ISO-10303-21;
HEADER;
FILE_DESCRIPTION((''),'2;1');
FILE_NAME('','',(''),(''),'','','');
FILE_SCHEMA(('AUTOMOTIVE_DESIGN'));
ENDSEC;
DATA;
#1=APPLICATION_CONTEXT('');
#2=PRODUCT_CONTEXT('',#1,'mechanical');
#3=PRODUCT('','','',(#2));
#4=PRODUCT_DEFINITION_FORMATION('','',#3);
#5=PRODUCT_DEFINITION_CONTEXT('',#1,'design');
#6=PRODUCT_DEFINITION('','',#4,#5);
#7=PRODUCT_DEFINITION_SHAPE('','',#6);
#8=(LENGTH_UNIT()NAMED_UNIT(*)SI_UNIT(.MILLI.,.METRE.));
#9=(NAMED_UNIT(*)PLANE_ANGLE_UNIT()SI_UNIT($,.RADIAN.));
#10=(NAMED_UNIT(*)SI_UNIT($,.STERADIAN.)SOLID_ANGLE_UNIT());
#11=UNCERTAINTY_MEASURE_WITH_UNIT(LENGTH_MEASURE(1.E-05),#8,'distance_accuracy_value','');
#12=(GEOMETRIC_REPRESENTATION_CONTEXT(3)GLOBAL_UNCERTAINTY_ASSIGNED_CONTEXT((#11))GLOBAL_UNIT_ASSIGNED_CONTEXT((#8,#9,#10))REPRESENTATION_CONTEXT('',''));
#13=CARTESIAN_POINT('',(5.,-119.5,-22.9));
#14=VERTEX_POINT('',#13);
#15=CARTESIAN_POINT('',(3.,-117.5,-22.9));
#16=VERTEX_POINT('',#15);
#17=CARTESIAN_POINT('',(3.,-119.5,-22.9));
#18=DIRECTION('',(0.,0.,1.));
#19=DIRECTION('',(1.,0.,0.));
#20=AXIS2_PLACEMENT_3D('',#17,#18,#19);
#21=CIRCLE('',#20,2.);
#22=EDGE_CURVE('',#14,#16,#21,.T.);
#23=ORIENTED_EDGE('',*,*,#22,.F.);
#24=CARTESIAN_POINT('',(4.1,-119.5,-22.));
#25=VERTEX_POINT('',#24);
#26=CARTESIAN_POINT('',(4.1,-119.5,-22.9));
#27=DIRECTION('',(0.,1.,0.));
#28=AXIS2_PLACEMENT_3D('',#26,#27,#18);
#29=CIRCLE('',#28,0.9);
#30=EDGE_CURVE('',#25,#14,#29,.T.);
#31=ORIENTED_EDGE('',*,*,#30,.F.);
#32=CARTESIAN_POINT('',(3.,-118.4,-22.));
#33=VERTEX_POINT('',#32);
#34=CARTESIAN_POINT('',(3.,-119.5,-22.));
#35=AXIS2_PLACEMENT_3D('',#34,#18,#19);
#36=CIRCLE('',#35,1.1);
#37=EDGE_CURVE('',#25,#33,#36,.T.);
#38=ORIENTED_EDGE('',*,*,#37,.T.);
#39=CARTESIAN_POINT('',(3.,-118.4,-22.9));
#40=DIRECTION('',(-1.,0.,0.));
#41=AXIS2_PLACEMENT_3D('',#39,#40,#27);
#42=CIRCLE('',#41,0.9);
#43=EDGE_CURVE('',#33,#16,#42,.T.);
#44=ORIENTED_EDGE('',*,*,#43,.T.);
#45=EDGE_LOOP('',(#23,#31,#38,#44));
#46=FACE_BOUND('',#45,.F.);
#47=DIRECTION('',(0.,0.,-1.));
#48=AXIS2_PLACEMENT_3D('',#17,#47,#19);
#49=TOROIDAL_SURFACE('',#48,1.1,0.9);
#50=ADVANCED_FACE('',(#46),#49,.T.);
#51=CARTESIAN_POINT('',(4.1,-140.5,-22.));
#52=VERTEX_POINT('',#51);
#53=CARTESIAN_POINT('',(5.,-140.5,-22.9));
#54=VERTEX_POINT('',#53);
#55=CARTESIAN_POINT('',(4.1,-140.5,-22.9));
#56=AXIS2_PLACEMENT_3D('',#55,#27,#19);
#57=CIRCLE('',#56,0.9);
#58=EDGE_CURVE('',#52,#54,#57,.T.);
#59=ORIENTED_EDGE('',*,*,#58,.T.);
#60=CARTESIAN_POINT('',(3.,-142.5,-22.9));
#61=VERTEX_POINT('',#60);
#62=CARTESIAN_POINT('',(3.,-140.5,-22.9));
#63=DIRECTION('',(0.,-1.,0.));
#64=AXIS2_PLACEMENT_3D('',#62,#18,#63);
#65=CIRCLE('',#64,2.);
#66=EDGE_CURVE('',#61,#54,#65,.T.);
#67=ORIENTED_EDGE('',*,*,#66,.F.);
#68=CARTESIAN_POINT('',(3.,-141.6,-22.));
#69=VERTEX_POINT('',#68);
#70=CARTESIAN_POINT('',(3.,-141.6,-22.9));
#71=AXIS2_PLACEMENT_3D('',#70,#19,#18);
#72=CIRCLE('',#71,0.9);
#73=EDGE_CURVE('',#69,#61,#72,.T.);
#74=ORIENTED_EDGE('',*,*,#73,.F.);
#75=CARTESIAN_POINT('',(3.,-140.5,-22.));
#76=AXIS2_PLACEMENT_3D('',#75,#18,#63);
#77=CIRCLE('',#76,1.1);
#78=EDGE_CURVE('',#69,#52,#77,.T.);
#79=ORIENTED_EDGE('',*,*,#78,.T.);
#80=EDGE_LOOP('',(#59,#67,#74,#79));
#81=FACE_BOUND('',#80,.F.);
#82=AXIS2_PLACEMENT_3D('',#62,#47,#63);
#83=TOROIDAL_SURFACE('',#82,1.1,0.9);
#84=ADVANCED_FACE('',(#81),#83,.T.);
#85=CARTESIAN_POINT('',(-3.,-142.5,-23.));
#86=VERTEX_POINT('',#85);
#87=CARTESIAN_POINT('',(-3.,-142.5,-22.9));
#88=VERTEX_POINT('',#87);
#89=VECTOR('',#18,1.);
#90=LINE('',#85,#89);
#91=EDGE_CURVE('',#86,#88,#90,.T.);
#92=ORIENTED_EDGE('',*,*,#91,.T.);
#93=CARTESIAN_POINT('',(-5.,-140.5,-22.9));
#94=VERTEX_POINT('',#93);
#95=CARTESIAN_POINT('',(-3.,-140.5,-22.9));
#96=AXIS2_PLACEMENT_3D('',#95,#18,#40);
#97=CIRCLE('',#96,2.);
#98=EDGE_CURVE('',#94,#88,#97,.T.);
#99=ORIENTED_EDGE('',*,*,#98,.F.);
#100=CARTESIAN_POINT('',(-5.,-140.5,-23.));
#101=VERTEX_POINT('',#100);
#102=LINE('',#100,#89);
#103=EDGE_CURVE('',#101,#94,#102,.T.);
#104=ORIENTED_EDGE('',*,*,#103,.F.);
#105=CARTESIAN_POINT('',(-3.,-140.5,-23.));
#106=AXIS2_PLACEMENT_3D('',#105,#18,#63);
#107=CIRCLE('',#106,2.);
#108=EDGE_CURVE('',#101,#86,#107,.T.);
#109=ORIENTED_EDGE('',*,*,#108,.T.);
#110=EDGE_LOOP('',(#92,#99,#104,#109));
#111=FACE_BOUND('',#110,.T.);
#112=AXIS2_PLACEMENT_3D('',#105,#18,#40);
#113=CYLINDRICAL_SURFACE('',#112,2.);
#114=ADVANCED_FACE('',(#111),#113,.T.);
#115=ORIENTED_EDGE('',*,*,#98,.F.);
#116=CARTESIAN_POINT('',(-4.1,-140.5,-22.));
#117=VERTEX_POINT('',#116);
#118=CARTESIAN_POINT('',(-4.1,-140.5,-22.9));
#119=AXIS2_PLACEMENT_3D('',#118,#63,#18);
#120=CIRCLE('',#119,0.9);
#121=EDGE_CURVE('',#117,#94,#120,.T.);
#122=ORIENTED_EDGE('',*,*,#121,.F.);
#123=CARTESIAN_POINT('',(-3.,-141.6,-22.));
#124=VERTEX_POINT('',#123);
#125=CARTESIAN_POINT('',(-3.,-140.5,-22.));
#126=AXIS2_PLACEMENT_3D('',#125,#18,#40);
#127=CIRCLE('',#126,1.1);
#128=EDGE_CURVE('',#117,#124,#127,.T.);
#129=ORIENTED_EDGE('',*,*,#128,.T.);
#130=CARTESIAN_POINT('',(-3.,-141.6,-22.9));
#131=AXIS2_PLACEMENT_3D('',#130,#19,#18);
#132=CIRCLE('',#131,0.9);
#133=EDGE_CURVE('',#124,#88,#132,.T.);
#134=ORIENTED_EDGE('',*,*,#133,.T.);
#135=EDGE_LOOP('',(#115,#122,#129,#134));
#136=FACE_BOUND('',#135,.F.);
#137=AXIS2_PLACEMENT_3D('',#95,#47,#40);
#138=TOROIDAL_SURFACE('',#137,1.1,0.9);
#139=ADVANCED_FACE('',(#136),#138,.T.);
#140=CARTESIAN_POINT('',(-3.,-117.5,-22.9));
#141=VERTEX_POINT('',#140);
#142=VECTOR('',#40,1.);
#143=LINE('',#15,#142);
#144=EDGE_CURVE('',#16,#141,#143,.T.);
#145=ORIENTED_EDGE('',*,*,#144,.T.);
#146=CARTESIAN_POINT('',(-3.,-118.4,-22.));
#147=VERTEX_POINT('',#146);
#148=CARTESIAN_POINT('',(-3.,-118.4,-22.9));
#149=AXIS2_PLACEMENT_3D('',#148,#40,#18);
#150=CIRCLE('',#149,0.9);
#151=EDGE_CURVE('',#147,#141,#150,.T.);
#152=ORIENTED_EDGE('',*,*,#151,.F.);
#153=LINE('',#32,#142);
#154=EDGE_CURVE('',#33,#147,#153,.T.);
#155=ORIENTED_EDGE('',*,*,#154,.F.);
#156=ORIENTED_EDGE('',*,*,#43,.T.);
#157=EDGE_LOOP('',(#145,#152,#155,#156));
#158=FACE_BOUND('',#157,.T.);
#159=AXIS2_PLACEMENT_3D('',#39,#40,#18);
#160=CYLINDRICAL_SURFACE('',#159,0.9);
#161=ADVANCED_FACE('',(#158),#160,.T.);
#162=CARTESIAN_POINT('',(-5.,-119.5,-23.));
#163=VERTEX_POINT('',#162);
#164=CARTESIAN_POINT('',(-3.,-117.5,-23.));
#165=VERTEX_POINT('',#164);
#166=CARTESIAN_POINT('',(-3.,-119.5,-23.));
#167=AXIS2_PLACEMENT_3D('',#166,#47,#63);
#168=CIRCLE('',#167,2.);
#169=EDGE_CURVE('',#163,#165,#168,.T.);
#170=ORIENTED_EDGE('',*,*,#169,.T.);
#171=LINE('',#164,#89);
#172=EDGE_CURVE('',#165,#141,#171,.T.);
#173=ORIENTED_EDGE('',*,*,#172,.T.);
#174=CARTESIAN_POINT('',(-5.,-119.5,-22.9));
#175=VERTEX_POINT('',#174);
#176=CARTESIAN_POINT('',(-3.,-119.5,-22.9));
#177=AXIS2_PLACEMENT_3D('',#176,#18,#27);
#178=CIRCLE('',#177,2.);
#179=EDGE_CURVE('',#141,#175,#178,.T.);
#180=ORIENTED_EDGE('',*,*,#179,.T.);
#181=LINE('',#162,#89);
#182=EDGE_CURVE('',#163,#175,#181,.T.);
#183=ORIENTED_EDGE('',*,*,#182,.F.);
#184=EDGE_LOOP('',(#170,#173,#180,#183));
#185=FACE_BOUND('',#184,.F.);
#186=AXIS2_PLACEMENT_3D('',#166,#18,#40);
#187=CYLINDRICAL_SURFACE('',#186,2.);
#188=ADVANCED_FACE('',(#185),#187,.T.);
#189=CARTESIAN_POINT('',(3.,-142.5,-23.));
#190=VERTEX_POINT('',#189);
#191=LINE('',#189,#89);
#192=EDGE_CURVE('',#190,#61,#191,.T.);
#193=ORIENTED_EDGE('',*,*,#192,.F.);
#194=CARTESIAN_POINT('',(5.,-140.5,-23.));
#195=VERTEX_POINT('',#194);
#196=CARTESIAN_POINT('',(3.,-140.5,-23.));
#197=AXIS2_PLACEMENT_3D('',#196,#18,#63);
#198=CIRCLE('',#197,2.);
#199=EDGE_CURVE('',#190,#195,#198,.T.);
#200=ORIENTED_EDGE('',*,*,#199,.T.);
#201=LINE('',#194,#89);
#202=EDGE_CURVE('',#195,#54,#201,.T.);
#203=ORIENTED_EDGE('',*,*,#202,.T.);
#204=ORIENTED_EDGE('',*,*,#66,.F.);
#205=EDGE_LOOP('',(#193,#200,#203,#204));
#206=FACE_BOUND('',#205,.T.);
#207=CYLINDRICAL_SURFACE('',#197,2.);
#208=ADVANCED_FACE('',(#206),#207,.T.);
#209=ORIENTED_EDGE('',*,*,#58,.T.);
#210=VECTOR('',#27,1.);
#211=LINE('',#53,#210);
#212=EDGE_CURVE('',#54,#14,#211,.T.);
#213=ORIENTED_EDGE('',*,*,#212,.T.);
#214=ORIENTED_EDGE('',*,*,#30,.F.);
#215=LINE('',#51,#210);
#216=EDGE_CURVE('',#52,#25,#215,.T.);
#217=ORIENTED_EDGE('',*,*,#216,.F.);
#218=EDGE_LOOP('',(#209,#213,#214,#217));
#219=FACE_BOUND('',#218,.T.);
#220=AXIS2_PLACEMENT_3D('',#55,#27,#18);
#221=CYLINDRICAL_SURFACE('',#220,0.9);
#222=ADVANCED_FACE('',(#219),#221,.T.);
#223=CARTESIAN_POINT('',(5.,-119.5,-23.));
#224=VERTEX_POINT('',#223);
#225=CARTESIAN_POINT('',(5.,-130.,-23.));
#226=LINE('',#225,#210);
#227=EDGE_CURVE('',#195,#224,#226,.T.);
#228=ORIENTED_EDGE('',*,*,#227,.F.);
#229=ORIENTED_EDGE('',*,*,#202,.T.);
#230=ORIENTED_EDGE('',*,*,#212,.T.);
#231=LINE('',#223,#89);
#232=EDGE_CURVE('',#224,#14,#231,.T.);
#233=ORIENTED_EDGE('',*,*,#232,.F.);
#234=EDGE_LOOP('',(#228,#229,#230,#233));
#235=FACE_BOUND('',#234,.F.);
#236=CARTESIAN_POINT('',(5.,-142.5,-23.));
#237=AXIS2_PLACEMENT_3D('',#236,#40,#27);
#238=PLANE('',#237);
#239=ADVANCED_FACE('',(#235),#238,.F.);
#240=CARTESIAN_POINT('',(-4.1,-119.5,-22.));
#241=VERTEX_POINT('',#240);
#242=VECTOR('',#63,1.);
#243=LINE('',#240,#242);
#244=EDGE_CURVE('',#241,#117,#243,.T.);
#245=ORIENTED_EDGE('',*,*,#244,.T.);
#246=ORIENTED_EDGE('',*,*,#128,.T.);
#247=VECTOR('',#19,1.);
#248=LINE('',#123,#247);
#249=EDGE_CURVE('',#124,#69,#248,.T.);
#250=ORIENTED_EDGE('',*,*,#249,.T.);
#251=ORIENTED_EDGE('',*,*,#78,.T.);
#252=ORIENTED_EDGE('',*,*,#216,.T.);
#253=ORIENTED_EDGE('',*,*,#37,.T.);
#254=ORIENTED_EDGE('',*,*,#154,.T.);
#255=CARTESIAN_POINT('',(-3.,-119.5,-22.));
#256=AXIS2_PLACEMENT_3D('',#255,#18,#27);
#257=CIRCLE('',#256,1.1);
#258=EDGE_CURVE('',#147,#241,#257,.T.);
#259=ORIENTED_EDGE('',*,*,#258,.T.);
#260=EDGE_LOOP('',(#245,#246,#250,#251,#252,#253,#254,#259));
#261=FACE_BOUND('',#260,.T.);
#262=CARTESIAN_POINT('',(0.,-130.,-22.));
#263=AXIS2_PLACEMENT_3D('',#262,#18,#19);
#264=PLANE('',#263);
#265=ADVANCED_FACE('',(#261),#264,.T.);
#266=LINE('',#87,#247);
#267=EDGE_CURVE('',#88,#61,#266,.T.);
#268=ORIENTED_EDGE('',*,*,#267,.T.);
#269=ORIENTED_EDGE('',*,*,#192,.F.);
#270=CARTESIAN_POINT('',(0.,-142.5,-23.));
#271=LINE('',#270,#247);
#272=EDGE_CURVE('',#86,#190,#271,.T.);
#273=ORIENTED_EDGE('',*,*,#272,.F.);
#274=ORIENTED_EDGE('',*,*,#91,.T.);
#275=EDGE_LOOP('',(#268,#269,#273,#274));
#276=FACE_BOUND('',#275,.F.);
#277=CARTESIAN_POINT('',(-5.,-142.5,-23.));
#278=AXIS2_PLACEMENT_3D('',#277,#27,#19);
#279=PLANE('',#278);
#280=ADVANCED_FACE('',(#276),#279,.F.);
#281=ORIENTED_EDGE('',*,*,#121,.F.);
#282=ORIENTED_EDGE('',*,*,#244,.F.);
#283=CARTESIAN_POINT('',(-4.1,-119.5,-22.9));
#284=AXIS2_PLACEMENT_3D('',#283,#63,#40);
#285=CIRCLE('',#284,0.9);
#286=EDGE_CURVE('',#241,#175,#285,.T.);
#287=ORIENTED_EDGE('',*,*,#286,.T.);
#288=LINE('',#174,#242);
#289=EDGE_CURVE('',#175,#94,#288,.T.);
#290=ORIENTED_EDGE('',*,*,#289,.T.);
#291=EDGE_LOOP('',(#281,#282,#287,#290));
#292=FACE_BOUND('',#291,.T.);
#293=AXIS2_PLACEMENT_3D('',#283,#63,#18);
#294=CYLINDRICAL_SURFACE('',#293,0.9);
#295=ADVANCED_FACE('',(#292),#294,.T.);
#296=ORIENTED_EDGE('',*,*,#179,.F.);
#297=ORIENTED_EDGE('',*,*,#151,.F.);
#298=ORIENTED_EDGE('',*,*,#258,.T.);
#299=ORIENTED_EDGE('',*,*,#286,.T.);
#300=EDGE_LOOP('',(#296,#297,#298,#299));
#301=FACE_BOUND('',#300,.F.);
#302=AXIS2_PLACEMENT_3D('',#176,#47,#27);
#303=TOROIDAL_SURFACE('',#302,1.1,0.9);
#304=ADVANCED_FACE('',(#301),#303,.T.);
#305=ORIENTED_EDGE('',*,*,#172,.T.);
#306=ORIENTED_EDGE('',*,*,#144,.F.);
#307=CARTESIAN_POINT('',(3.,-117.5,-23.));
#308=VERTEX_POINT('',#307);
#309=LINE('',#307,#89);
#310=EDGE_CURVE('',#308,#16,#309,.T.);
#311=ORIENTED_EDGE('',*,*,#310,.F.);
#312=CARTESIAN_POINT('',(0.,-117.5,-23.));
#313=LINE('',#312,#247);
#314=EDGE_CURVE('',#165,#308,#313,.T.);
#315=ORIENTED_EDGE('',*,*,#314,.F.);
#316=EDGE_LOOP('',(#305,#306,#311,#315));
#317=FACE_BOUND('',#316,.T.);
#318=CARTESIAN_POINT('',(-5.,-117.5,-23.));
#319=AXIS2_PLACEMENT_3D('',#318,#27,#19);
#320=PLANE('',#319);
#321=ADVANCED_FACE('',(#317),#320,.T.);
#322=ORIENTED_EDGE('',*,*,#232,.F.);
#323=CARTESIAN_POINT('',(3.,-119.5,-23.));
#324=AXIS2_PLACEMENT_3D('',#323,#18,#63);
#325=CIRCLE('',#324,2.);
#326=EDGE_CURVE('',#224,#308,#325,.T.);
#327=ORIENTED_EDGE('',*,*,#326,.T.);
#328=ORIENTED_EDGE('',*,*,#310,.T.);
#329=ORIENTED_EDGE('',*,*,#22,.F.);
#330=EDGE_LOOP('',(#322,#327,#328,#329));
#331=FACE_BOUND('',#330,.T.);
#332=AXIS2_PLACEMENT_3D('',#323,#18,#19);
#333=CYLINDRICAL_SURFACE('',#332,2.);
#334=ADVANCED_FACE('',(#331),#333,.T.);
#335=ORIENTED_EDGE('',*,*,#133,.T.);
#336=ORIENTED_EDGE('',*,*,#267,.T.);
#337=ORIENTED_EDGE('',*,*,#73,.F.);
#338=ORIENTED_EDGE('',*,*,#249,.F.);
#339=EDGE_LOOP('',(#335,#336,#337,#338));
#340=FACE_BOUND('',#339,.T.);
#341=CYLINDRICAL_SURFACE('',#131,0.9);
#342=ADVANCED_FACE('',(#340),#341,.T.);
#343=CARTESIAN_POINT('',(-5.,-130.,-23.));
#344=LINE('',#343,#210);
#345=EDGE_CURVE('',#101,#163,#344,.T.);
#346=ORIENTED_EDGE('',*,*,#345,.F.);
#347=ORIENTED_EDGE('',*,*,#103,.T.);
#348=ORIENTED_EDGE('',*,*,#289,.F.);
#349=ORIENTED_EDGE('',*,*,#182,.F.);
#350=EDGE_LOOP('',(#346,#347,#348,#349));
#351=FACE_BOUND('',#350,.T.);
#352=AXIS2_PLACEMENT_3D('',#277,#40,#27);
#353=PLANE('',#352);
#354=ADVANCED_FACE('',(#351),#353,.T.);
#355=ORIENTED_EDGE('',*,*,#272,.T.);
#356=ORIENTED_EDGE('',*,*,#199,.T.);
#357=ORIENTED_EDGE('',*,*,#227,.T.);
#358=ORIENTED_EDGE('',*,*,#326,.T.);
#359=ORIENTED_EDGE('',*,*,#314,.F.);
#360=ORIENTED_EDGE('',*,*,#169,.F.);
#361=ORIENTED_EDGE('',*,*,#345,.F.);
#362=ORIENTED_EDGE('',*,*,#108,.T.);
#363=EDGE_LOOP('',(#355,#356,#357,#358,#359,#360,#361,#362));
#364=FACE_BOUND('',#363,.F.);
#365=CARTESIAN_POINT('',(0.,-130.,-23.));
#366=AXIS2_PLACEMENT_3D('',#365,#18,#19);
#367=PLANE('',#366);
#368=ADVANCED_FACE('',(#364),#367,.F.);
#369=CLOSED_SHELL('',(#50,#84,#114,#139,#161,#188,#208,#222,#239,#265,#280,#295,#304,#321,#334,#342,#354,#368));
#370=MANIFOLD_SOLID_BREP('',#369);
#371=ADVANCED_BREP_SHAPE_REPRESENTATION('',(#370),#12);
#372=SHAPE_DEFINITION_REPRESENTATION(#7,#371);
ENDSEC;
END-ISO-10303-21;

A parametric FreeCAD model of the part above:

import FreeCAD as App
import Part
import Sketcher


def edges_at(feature, points):
    """Names of the edges that pass closest to the given points."""
    edges = feature.Shape.Edges
    near = lambda p: min(range(len(edges)), key=lambda i: edges[i].distToShape(Part.Vertex(*p))[0])
    return sorted({f"Edge{near(p) + 1}" for p in points})

doc = App.newDocument("Part")
body = doc.addObject("PartDesign::Body", "Body")

# Sketch on XY plane
sketch1 = body.newObject("Sketcher::SketchObject", "Sketch")
sketch1.AttachmentSupport = (doc.getObject("XY_Plane"), [""])
sketch1.MapMode = "FlatFace"
sketch1.addGeometry(Part.LineSegment(App.Vector(-5, 12, 0), App.Vector(-5, -12, 0)), False)
sketch1.addGeometry(Part.LineSegment(App.Vector(-5, -12, 0), App.Vector(5, -12, 0)), False)
sketch1.addGeometry(Part.LineSegment(App.Vector(5, -12, 0), App.Vector(5, 12, 0)), False)
sketch1.addGeometry(Part.LineSegment(App.Vector(5, 12, 0), App.Vector(-5, 12, 0)), False)
sketch1.addConstraint(Sketcher.Constraint("Coincident", 0, 2, 1, 1))
sketch1.addConstraint(Sketcher.Constraint("Coincident", 1, 2, 2, 1))
sketch1.addConstraint(Sketcher.Constraint("Coincident", 2, 2, 3, 1))
sketch1.addConstraint(Sketcher.Constraint("Coincident", 3, 2, 0, 1))
sketch1.addConstraint(Sketcher.Constraint("Vertical", 0))
sketch1.addConstraint(Sketcher.Constraint("Horizontal", 1))
sketch1.addConstraint(Sketcher.Constraint("Vertical", 2))
sketch1.addConstraint(Sketcher.Constraint("Horizontal", 3))
sketch1.addConstraint(Sketcher.Constraint("Symmetric", 0, 2, 2, 2, -1, 1))
sketch1.addConstraint(Sketcher.Constraint("DistanceX", 1, 1, 1, 2, 10.0))
sketch1.addConstraint(Sketcher.Constraint("DistanceY", 0, 2, 0, 1, 25.0))
pad1 = body.newObject("PartDesign::Pad", "Pad")
pad1.Profile = sketch1
pad1.Length = 1
doc.recompute()

fillet = body.newObject("PartDesign::Fillet", "Fillet")
fillet.Base = (pad1, edges_at(pad1, [
    (-5, -12.5, 0.5),
    (-5, 12.5, 0.5),
    (5, -12.5, 0.5),
    (5, 12.5, 0.5),
]))
fillet.Radius = 2
doc.recompute()

fillet2 = body.newObject("PartDesign::Fillet", "Fillet001")
fillet2.Base = (fillet, edges_at(fillet, [
    (0, -12.5, 1),
    (5, 0, 1),
    (-5, 0, 1),
    (0, 12.5, 1),
]))
fillet2.Radius = 0.9
body2 = doc.addObject("PartDesign::Body", "Body001")
doc.recompute()

body.Placement = App.Placement(App.Vector(0, -130, -23), App.Rotation(App.Vector(0, 0, 1), 0))
boolean = body2.newObject("PartDesign::Boolean", "Boolean")
boolean.Type = "Fuse"
boolean.addObjects([body])

doc.recompute()
